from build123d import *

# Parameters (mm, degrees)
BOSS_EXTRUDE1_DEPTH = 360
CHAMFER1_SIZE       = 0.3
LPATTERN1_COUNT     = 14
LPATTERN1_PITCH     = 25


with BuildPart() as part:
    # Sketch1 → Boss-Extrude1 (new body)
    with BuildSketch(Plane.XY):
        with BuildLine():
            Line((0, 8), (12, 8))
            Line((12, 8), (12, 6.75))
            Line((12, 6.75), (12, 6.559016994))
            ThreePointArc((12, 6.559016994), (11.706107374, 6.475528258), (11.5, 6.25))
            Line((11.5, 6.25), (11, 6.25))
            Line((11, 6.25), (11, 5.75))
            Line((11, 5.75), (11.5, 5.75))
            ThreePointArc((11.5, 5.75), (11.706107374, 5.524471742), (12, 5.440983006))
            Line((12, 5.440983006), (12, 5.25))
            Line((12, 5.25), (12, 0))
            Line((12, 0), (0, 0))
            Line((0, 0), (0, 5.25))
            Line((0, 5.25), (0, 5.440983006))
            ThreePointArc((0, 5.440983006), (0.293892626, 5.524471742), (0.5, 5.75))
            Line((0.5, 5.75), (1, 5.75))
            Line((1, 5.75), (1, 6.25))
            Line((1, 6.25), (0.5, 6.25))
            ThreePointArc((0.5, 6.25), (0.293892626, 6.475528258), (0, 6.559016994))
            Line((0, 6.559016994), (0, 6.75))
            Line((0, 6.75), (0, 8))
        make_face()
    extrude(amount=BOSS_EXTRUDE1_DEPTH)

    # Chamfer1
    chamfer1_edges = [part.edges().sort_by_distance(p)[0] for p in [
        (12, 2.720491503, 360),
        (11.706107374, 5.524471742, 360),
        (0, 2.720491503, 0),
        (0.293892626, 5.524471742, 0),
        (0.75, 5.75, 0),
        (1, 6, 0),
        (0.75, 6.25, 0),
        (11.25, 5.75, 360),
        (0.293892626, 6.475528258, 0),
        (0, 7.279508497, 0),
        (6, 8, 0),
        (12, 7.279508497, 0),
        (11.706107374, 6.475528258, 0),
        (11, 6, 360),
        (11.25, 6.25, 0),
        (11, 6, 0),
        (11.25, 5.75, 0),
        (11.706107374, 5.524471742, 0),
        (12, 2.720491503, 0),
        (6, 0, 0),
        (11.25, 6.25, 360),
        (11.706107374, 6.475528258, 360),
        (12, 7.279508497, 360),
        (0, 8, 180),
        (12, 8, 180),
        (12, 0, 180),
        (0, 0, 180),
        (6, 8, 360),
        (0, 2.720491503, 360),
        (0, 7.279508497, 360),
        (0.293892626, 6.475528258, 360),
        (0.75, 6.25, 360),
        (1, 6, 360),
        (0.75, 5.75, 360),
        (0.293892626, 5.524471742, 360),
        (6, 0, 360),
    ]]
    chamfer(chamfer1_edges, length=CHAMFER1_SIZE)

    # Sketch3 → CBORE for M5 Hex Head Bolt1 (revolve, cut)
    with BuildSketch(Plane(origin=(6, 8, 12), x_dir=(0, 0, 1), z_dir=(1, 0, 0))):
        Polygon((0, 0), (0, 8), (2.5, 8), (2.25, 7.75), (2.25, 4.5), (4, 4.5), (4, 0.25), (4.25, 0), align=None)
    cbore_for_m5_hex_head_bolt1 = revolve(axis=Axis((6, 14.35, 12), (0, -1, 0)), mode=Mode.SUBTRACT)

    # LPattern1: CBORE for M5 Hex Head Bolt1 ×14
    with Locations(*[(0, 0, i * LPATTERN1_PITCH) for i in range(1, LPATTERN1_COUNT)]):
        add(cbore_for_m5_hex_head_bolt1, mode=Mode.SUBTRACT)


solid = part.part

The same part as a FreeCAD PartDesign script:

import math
import FreeCAD as App
import Part
import Sketcher

V = App.Vector
Q = App.Units.Quantity


def edges_at(feature, points):
    """Names of the edges that pass closest to the given points."""
    edges = feature.Shape.Edges
    near = lambda p: min(range(len(edges)), key=lambda i: edges[i].distToShape(Part.Vertex(*p))[0])
    return sorted({f"Edge{near(p) + 1}" for p in points})


def add_polygon(sketch, points):
    """Adds a closed chain of lines whose ends are joined by coincident constraints."""
    first, n = sketch.GeometryCount, len(points)
    for a, b in zip(points, points[1:] + points[:1]):
        sketch.addGeometry(Part.LineSegment(App.Vector(*a, 0), App.Vector(*b, 0)), False)
    for i in range(n):
        sketch.addConstraint(Sketcher.Constraint("Coincident", first + i, 2, first + (i + 1) % n, 1))

doc = App.newDocument("Part")
body = doc.addObject("PartDesign::Body", "Body")

# Sketch on XY plane
sketch1 = body.newObject("Sketcher::SketchObject", "Sketch")
sketch1.AttachmentSupport = (doc.getObject("XY_Plane"), [""])
sketch1.MapMode = "FlatFace"
sketch1.addGeometry([
    Part.LineSegment(V(12, 8, 0), V(0, 8, 0)),  # 0
    Part.LineSegment(V(0, 8, 0), V(0, 6.6, 0)),  # 1
    Part.ArcOfCircle(Part.Circle(V(0, 6, 0), V(0, 0, 1), 0.6), math.radians(27), math.radians(90)),  # 2
    Part.LineSegment(V(0.5, 6.2, 0), V(1, 6.2, 0)),  # 3
    Part.LineSegment(V(1, 6.2, 0), V(1, 5.8, 0)),  # 4
    Part.LineSegment(V(1, 5.8, 0), V(0.5, 5.8, 0)),  # 5
    Part.ArcOfCircle(Part.Circle(V(0, 6, 0), V(0, 0, 1), 0.6), math.radians(-90), math.radians(-27)),  # 6
    Part.LineSegment(V(0, 5.4, 0), V(0, 0, 0)),  # 7
    Part.LineSegment(V(0, 0, 0), V(12, 0, 0)),  # 8
    Part.LineSegment(V(12, 0, 0), V(12, 5.4, 0)),  # 9
    Part.ArcOfCircle(Part.Circle(V(12, 6, 0), V(0, 0, 1), 0.6), math.radians(-153), math.radians(-90)),  # 10
    Part.LineSegment(V(11.5, 5.8, 0), V(11, 5.8, 0)),  # 11
    Part.LineSegment(V(11, 5.8, 0), V(11, 6.2, 0)),  # 12
    Part.LineSegment(V(11, 6.2, 0), V(11.5, 6.2, 0)),  # 13
    Part.ArcOfCircle(Part.Circle(V(12, 6, 0), V(0, 0, 1), 0.6), math.radians(90), math.radians(153)),  # 14
    Part.LineSegment(V(12, 6.6, 0), V(12, 8, 0)),  # 15
], False)
sketch1.addConstraint([
    Sketcher.Constraint("Coincident", 0, 2, 1, 1),
    Sketcher.Constraint("Coincident", 1, 2, 2, 2),
    Sketcher.Constraint("Coincident", 2, 1, 3, 1),
    Sketcher.Constraint("Coincident", 3, 2, 4, 1),
    Sketcher.Constraint("Coincident", 4, 2, 5, 1),
    Sketcher.Constraint("Coincident", 5, 2, 6, 2),
    Sketcher.Constraint("Coincident", 6, 1, 7, 1),
    Sketcher.Constraint("Coincident", 7, 2, 8, 1),
    Sketcher.Constraint("Coincident", 8, 2, 9, 1),
    Sketcher.Constraint("Coincident", 9, 2, 10, 2),
    Sketcher.Constraint("Coincident", 10, 1, 11, 1),
    Sketcher.Constraint("Coincident", 11, 2, 12, 1),
    Sketcher.Constraint("Coincident", 12, 2, 13, 1),
    Sketcher.Constraint("Coincident", 13, 2, 14, 2),
    Sketcher.Constraint("Coincident", 14, 1, 15, 1),
    Sketcher.Constraint("Coincident", 15, 2, 0, 1),
    Sketcher.Constraint("Horizontal", 0),
    Sketcher.Constraint("Vertical", 1),
    Sketcher.Constraint("Horizontal", 3),
    Sketcher.Constraint("Vertical", 4),
    Sketcher.Constraint("Horizontal", 5),
    Sketcher.Constraint("Vertical", 7),
    Sketcher.Constraint("Horizontal", 8),
    Sketcher.Constraint("Vertical", 9),
    Sketcher.Constraint("Horizontal", 11),
    Sketcher.Constraint("Vertical", 12),
    Sketcher.Constraint("Horizontal", 13),
    Sketcher.Constraint("Vertical", 15),
    Sketcher.Constraint("Coincident", 7, 2, -1, 1),
    Sketcher.Constraint("Coincident", 6, 3, 2, 3),
    Sketcher.Constraint("Coincident", 14, 3, 10, 3),
    Sketcher.Constraint("Equal", 2, 6),
    Sketcher.Constraint("Equal", 6, 10),
    Sketcher.Constraint("Equal", 10, 14),
    Sketcher.Constraint("PointOnObject", 2, 3, -2),
    Sketcher.Constraint("PointOnObject", 0, 2, -2),
    Sketcher.Constraint("Horizontal", 6, 3, 10, 3),
    Sketcher.Constraint("Horizontal", 5, 2, 10, 1),
    Sketcher.Constraint("Horizontal", 3, 2, 12, 2),
    Sketcher.Constraint("Vertical", 2, 1, 5, 2),
    Sketcher.Constraint("Vertical", 14, 3, 8, 2),
    Sketcher.Constraint("Vertical", 9, 2, 14, 1),
    Sketcher.Constraint("Equal", 5, 11),
    Sketcher.Constraint("Equal", 13, 4),
    Sketcher.Constraint("DistanceX", 0, 2, 0, 1, 12.0),
    Sketcher.Constraint("DistanceX", 3, 1, 3, 2, 0.5),
    Sketcher.Constraint("DistanceY", -1, 1, 2, 3, 6.0),
    Sketcher.Constraint("DistanceY", -1, 1, 0, 2, 8.0),
    Sketcher.Constraint("DistanceX", -1, 1, 3, 2, 1.0),
])
pad1 = body.newObject("PartDesign::Pad", "Pad")
pad1.Profile = sketch1
pad1.Length = 360
doc.recompute()

chamfer = body.newObject("PartDesign::Chamfer", "Chamfer")
chamfer.Base = (pad1, edges_at(pad1, [
    (12, 2.72, 360),
    (11.706, 5.524, 360),
    (0, 2.72, 0),
    (0.294, 5.524, 0),
    (0.75, 5.75, 0),
    (1, 6, 0),
    (0.75, 6.25, 0),
    (11.25, 5.75, 360),
    (0.294, 6.476, 0),
    (0, 7.28, 0),
    (6, 8, 0),
    (12, 7.28, 0),
    (11.706, 6.476, 0),
    (11, 6, 360),
    (11.25, 6.25, 0),
    (11, 6, 0),
    (11.25, 5.75, 0),
    (11.706, 5.524, 0),
    (12, 2.72, 0),
    (6, 0, 0),
    (11.25, 6.25, 360),
    (11.706, 6.476, 360),
    (12, 7.28, 360),
    (0, 8, 180),
    (12, 8, 180),
    (12, 0, 180),
    (0, 0, 180),
    (6, 8, 360),
    (0, 2.72, 360),
    (0, 7.28, 360),
    (0.294, 6.476, 360),
    (0.75, 6.25, 360),
    (1, 6, 360),
    (0.75, 5.75, 360),
    (0.294, 5.524, 360),
    (6, 0, 360),
]))
chamfer.Size = 0.3

# Sketch on YZ plane
sketch2 = body.newObject("Sketcher::SketchObject", "Sketch001")
sketch2.AttachmentSupport = (doc.getObject("YZ_Plane"), [""])
sketch2.MapMode = "FlatFace"
sketch2.AttachmentOffset = App.Placement(V(0, 0, 6), App.Rotation())
add_polygon(sketch2, [(0, 12), (8, 12), (8, 16.25), (7.75, 16), (3.5, 16), (3.5, 14.25), (0.25, 14.25), (0, 14.5)])  # lines 0-7
sketch2.addGeometry(Part.LineSegment(V(8, 12, 0), V(0, 12, 0)), True)  # axis
sketch2.addConstraint([
    Sketcher.Constraint("Horizontal", 0),
    Sketcher.Constraint("Vertical", 1),
    Sketcher.Constraint("Horizontal", 3),
    Sketcher.Constraint("Vertical", 4),
    Sketcher.Constraint("Horizontal", 5),
    Sketcher.Constraint("Vertical", 7),
    Sketcher.Constraint("Horizontal", 8),
    Sketcher.Constraint("Coincident", 8, 1, 0, 2),
    Sketcher.Constraint("PointOnObject", 6, 2, -2),
    Sketcher.Constraint("PointOnObject", 8, 2, -2),
    Sketcher.Constraint("Perpendicular", 2, 6),
    Sketcher.Constraint("Equal", 3, 1),
    Sketcher.Constraint("Equal", 2, 6),
    Sketcher.Constraint("DistanceX", 0, 1, 0, 2, 8.0),
    Sketcher.Constraint("Angle", 2, Q("-135 deg")),
    Sketcher.Constraint("DistanceY", 7, 2, 7, 1, 2.5),
    Sketcher.Constraint("DistanceY", -1, 1, 0, 2, 12.0),
    Sketcher.Constraint("DistanceY", -1, 1, 2, 2, 16.0),
    Sketcher.Constraint("DistanceY", 4, 2, 1, 2, 2.0),
])
groove = body.newObject("PartDesign::Groove", "Groove")
groove.Profile = sketch2
groove.ReferenceAxis = (sketch2, ["Axis0"])
groove.Angle = 360
doc.recompute()

linearpattern = body.newObject("PartDesign::LinearPattern", "LinearPattern")
linearpattern.Originals = [groove]
linearpattern.Direction = (doc.getObject("Z_Axis"), [""])
linearpattern.Mode = "offset"
linearpattern.Offset = 25
linearpattern.Occurrences = 14
body.Tip = linearpattern

doc.recompute()
